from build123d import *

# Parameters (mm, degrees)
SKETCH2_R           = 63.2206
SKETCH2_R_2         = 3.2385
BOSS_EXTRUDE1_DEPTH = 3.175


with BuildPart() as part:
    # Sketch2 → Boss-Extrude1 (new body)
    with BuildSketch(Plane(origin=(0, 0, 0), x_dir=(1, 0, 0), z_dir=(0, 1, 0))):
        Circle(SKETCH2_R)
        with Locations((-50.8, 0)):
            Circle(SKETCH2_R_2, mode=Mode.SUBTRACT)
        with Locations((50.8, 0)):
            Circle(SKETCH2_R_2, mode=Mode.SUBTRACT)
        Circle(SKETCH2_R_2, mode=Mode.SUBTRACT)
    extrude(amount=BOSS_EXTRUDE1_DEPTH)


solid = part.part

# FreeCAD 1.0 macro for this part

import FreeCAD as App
import Part
import Sketcher
Q = App.Units.Quantity

doc = App.newDocument("Part")
body = doc.addObject("PartDesign::Body", "Body")

# Sketch on XZ plane
sketch1 = body.newObject("Sketcher::SketchObject", "Sketch")
sketch1.AttachmentSupport = (doc.getObject("XZ_Plane"), [""])
sketch1.MapMode = "FlatFace"
sketch1.addGeometry([
    Part.Circle(App.Vector(0, 0, 0), App.Vector(0, 0, 1), 63.2),
    Part.Circle(App.Vector(-50.8, 0, 0), App.Vector(0, 0, 1), 3.2),
    Part.Circle(App.Vector(0, 0, 0), App.Vector(0, 0, 1), 3.2),
    Part.Circle(App.Vector(50.8, 0, 0), App.Vector(0, 0, 1), 3.2),
], False)
sketch1.addConstraint([
    Sketcher.Constraint("Coincident", 0, 3, -1, 1),
    Sketcher.Constraint("Coincident", 2, 3, -1, 1),
    Sketcher.Constraint("Equal", 1, 2),
    Sketcher.Constraint("Equal", 2, 3),
    Sketcher.Constraint("Symmetric", 1, 3, 3, 3, -1, 1),
    Sketcher.Constraint("PointOnObject", 1, 3, -1),
    Sketcher.Constraint("Diameter", 0, Q("4.978 in")),
    Sketcher.Constraint("Diameter", 1, Q("0.255 in")),
    Sketcher.Constraint("DistanceX", 1, 3, -1, 1, Q("2 in")),
])
pad1 = body.newObject("PartDesign::Pad", "Pad")
pad1.Profile = sketch1
pad1.Length = Q("0.125 in")
pad1.Reversed = True

doc.recompute()
